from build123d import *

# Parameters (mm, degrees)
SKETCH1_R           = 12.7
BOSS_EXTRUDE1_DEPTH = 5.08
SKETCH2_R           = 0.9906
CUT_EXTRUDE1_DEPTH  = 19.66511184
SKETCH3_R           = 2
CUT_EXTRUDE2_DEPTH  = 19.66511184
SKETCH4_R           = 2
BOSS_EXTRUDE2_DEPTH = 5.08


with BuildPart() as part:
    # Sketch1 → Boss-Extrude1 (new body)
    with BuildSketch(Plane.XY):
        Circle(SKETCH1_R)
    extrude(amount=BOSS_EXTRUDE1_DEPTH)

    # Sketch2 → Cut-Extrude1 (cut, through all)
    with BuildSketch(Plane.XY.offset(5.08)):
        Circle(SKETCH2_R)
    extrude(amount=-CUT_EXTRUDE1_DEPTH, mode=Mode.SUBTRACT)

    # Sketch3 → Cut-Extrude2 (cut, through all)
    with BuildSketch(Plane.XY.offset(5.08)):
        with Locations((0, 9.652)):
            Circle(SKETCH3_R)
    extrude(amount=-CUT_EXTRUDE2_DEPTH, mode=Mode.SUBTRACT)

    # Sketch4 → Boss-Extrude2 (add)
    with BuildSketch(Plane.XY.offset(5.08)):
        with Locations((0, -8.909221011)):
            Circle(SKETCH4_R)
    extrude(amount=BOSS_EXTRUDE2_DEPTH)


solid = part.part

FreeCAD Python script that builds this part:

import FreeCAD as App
import Part
import Sketcher
from FreeCAD import Vector
Q = App.Units.Quantity

doc = App.newDocument("Part")
params = doc.addObject("Spreadsheet::Sheet", "Params")
for row, (alias, value) in enumerate([
    ("sketch1_diameter", "1 in"),
    ("pad1_length", "0.2 in"),
    ("sketch2_diameter", "0.078 in"),
    ("pad2_length", "0.2 in"),
], start=1):
    params.set(f"A{row}", alias)
    params.set(f"B{row}", "=" + value)
    params.setAlias(f"B{row}", alias)

body = doc.addObject("PartDesign::Body", "Body")

sketch1 = doc.addObject("Sketcher::SketchObject", "Sketch")
body.addObject(sketch1)
sketch1.AttachmentSupport = (doc.XY_Plane, [""])
sketch1.MapMode = "FlatFace"
sketch1.addGeometry(Part.Circle(Vector(0, 0, 0), Vector(0, 0, 1), 13), False)
sketch1.addConstraint(Sketcher.Constraint("Coincident", 0, 3, -1, 1))
sketch1.addConstraint(Sketcher.Constraint("Diameter", 0, Q("1 in")))
sketch1.setExpression("Constraints[1]", "Params.sketch1_diameter")
pad1 = doc.addObject("PartDesign::Pad", "Pad")
body.addObject(pad1)
pad1.Profile = sketch1
pad1.setExpression("Length", "Params.pad1_length")

sketch2 = doc.addObject("Sketcher::SketchObject", "Sketch001")
body.addObject(sketch2)
sketch2.AttachmentSupport = (doc.XY_Plane, [""])
sketch2.MapMode = "FlatFace"
sketch2.AttachmentOffset = App.Placement(Vector(0, 0, 0.2 * 25.4), App.Rotation())
sketch2.addGeometry(Part.Circle(Vector(0, 0, 0), Vector(0, 0, 1), 1), False)
sketch2.addConstraint(Sketcher.Constraint("Coincident", 0, 3, -1, 1))
sketch2.addConstraint(Sketcher.Constraint("Diameter", 0, Q("0.078 in")))
sketch2.setExpression("Constraints[1]", "Params.sketch2_diameter")
pocket1 = doc.addObject("PartDesign::Pocket", "Pocket")
body.addObject(pocket1)
pocket1.Profile = sketch2
pocket1.Type = "ThroughAll"

sketch3 = doc.addObject("Sketcher::SketchObject", "Sketch002")
body.addObject(sketch3)
sketch3.AttachmentSupport = (doc.XY_Plane, [""])
sketch3.MapMode = "FlatFace"
sketch3.AttachmentOffset = App.Placement(Vector(0, 0, 0.2 * 25.4), App.Rotation())
sketch3.addGeometry(Part.Circle(Vector(0, 9.7, 0), Vector(0, 0, 1), 2), False)
sketch3.addConstraint(Sketcher.Constraint("PointOnObject", 0, 3, -2))
sketch3.addConstraint(Sketcher.Constraint("Diameter", 0, Q("4 mm")))
sketch3.addConstraint(Sketcher.Constraint("DistanceY", -1, 1, 0, 3, Q("0.38 in")))
pocket2 = doc.addObject("PartDesign::Pocket", "Pocket001")
body.addObject(pocket2)
pocket2.Profile = sketch3
pocket2.Type = "ThroughAll"

sketch4 = doc.addObject("Sketcher::SketchObject", "Sketch003")
body.addObject(sketch4)
sketch4.AttachmentSupport = (doc.XY_Plane, [""])
sketch4.MapMode = "FlatFace"
sketch4.AttachmentOffset = App.Placement(Vector(0, 0, 0.2 * 25.4), App.Rotation())
sketch4.addGeometry(Part.Circle(Vector(0, -8.9, 0), Vector(0, 0, 1), 2), False)
sketch4.addConstraint(Sketcher.Constraint("PointOnObject", 0, 3, -2))
sketch4.addConstraint(Sketcher.Constraint("Diameter", 0, Q("4 mm")))
sketch4.addConstraint(Sketcher.Constraint("DistanceY", 0, 3, -1, 1, Q("8.909221 mm")))
pad2 = doc.addObject("PartDesign::Pad", "Pad001")
body.addObject(pad2)
pad2.Profile = sketch4
pad2.setExpression("Length", "Params.pad2_length")

doc.recompute()
